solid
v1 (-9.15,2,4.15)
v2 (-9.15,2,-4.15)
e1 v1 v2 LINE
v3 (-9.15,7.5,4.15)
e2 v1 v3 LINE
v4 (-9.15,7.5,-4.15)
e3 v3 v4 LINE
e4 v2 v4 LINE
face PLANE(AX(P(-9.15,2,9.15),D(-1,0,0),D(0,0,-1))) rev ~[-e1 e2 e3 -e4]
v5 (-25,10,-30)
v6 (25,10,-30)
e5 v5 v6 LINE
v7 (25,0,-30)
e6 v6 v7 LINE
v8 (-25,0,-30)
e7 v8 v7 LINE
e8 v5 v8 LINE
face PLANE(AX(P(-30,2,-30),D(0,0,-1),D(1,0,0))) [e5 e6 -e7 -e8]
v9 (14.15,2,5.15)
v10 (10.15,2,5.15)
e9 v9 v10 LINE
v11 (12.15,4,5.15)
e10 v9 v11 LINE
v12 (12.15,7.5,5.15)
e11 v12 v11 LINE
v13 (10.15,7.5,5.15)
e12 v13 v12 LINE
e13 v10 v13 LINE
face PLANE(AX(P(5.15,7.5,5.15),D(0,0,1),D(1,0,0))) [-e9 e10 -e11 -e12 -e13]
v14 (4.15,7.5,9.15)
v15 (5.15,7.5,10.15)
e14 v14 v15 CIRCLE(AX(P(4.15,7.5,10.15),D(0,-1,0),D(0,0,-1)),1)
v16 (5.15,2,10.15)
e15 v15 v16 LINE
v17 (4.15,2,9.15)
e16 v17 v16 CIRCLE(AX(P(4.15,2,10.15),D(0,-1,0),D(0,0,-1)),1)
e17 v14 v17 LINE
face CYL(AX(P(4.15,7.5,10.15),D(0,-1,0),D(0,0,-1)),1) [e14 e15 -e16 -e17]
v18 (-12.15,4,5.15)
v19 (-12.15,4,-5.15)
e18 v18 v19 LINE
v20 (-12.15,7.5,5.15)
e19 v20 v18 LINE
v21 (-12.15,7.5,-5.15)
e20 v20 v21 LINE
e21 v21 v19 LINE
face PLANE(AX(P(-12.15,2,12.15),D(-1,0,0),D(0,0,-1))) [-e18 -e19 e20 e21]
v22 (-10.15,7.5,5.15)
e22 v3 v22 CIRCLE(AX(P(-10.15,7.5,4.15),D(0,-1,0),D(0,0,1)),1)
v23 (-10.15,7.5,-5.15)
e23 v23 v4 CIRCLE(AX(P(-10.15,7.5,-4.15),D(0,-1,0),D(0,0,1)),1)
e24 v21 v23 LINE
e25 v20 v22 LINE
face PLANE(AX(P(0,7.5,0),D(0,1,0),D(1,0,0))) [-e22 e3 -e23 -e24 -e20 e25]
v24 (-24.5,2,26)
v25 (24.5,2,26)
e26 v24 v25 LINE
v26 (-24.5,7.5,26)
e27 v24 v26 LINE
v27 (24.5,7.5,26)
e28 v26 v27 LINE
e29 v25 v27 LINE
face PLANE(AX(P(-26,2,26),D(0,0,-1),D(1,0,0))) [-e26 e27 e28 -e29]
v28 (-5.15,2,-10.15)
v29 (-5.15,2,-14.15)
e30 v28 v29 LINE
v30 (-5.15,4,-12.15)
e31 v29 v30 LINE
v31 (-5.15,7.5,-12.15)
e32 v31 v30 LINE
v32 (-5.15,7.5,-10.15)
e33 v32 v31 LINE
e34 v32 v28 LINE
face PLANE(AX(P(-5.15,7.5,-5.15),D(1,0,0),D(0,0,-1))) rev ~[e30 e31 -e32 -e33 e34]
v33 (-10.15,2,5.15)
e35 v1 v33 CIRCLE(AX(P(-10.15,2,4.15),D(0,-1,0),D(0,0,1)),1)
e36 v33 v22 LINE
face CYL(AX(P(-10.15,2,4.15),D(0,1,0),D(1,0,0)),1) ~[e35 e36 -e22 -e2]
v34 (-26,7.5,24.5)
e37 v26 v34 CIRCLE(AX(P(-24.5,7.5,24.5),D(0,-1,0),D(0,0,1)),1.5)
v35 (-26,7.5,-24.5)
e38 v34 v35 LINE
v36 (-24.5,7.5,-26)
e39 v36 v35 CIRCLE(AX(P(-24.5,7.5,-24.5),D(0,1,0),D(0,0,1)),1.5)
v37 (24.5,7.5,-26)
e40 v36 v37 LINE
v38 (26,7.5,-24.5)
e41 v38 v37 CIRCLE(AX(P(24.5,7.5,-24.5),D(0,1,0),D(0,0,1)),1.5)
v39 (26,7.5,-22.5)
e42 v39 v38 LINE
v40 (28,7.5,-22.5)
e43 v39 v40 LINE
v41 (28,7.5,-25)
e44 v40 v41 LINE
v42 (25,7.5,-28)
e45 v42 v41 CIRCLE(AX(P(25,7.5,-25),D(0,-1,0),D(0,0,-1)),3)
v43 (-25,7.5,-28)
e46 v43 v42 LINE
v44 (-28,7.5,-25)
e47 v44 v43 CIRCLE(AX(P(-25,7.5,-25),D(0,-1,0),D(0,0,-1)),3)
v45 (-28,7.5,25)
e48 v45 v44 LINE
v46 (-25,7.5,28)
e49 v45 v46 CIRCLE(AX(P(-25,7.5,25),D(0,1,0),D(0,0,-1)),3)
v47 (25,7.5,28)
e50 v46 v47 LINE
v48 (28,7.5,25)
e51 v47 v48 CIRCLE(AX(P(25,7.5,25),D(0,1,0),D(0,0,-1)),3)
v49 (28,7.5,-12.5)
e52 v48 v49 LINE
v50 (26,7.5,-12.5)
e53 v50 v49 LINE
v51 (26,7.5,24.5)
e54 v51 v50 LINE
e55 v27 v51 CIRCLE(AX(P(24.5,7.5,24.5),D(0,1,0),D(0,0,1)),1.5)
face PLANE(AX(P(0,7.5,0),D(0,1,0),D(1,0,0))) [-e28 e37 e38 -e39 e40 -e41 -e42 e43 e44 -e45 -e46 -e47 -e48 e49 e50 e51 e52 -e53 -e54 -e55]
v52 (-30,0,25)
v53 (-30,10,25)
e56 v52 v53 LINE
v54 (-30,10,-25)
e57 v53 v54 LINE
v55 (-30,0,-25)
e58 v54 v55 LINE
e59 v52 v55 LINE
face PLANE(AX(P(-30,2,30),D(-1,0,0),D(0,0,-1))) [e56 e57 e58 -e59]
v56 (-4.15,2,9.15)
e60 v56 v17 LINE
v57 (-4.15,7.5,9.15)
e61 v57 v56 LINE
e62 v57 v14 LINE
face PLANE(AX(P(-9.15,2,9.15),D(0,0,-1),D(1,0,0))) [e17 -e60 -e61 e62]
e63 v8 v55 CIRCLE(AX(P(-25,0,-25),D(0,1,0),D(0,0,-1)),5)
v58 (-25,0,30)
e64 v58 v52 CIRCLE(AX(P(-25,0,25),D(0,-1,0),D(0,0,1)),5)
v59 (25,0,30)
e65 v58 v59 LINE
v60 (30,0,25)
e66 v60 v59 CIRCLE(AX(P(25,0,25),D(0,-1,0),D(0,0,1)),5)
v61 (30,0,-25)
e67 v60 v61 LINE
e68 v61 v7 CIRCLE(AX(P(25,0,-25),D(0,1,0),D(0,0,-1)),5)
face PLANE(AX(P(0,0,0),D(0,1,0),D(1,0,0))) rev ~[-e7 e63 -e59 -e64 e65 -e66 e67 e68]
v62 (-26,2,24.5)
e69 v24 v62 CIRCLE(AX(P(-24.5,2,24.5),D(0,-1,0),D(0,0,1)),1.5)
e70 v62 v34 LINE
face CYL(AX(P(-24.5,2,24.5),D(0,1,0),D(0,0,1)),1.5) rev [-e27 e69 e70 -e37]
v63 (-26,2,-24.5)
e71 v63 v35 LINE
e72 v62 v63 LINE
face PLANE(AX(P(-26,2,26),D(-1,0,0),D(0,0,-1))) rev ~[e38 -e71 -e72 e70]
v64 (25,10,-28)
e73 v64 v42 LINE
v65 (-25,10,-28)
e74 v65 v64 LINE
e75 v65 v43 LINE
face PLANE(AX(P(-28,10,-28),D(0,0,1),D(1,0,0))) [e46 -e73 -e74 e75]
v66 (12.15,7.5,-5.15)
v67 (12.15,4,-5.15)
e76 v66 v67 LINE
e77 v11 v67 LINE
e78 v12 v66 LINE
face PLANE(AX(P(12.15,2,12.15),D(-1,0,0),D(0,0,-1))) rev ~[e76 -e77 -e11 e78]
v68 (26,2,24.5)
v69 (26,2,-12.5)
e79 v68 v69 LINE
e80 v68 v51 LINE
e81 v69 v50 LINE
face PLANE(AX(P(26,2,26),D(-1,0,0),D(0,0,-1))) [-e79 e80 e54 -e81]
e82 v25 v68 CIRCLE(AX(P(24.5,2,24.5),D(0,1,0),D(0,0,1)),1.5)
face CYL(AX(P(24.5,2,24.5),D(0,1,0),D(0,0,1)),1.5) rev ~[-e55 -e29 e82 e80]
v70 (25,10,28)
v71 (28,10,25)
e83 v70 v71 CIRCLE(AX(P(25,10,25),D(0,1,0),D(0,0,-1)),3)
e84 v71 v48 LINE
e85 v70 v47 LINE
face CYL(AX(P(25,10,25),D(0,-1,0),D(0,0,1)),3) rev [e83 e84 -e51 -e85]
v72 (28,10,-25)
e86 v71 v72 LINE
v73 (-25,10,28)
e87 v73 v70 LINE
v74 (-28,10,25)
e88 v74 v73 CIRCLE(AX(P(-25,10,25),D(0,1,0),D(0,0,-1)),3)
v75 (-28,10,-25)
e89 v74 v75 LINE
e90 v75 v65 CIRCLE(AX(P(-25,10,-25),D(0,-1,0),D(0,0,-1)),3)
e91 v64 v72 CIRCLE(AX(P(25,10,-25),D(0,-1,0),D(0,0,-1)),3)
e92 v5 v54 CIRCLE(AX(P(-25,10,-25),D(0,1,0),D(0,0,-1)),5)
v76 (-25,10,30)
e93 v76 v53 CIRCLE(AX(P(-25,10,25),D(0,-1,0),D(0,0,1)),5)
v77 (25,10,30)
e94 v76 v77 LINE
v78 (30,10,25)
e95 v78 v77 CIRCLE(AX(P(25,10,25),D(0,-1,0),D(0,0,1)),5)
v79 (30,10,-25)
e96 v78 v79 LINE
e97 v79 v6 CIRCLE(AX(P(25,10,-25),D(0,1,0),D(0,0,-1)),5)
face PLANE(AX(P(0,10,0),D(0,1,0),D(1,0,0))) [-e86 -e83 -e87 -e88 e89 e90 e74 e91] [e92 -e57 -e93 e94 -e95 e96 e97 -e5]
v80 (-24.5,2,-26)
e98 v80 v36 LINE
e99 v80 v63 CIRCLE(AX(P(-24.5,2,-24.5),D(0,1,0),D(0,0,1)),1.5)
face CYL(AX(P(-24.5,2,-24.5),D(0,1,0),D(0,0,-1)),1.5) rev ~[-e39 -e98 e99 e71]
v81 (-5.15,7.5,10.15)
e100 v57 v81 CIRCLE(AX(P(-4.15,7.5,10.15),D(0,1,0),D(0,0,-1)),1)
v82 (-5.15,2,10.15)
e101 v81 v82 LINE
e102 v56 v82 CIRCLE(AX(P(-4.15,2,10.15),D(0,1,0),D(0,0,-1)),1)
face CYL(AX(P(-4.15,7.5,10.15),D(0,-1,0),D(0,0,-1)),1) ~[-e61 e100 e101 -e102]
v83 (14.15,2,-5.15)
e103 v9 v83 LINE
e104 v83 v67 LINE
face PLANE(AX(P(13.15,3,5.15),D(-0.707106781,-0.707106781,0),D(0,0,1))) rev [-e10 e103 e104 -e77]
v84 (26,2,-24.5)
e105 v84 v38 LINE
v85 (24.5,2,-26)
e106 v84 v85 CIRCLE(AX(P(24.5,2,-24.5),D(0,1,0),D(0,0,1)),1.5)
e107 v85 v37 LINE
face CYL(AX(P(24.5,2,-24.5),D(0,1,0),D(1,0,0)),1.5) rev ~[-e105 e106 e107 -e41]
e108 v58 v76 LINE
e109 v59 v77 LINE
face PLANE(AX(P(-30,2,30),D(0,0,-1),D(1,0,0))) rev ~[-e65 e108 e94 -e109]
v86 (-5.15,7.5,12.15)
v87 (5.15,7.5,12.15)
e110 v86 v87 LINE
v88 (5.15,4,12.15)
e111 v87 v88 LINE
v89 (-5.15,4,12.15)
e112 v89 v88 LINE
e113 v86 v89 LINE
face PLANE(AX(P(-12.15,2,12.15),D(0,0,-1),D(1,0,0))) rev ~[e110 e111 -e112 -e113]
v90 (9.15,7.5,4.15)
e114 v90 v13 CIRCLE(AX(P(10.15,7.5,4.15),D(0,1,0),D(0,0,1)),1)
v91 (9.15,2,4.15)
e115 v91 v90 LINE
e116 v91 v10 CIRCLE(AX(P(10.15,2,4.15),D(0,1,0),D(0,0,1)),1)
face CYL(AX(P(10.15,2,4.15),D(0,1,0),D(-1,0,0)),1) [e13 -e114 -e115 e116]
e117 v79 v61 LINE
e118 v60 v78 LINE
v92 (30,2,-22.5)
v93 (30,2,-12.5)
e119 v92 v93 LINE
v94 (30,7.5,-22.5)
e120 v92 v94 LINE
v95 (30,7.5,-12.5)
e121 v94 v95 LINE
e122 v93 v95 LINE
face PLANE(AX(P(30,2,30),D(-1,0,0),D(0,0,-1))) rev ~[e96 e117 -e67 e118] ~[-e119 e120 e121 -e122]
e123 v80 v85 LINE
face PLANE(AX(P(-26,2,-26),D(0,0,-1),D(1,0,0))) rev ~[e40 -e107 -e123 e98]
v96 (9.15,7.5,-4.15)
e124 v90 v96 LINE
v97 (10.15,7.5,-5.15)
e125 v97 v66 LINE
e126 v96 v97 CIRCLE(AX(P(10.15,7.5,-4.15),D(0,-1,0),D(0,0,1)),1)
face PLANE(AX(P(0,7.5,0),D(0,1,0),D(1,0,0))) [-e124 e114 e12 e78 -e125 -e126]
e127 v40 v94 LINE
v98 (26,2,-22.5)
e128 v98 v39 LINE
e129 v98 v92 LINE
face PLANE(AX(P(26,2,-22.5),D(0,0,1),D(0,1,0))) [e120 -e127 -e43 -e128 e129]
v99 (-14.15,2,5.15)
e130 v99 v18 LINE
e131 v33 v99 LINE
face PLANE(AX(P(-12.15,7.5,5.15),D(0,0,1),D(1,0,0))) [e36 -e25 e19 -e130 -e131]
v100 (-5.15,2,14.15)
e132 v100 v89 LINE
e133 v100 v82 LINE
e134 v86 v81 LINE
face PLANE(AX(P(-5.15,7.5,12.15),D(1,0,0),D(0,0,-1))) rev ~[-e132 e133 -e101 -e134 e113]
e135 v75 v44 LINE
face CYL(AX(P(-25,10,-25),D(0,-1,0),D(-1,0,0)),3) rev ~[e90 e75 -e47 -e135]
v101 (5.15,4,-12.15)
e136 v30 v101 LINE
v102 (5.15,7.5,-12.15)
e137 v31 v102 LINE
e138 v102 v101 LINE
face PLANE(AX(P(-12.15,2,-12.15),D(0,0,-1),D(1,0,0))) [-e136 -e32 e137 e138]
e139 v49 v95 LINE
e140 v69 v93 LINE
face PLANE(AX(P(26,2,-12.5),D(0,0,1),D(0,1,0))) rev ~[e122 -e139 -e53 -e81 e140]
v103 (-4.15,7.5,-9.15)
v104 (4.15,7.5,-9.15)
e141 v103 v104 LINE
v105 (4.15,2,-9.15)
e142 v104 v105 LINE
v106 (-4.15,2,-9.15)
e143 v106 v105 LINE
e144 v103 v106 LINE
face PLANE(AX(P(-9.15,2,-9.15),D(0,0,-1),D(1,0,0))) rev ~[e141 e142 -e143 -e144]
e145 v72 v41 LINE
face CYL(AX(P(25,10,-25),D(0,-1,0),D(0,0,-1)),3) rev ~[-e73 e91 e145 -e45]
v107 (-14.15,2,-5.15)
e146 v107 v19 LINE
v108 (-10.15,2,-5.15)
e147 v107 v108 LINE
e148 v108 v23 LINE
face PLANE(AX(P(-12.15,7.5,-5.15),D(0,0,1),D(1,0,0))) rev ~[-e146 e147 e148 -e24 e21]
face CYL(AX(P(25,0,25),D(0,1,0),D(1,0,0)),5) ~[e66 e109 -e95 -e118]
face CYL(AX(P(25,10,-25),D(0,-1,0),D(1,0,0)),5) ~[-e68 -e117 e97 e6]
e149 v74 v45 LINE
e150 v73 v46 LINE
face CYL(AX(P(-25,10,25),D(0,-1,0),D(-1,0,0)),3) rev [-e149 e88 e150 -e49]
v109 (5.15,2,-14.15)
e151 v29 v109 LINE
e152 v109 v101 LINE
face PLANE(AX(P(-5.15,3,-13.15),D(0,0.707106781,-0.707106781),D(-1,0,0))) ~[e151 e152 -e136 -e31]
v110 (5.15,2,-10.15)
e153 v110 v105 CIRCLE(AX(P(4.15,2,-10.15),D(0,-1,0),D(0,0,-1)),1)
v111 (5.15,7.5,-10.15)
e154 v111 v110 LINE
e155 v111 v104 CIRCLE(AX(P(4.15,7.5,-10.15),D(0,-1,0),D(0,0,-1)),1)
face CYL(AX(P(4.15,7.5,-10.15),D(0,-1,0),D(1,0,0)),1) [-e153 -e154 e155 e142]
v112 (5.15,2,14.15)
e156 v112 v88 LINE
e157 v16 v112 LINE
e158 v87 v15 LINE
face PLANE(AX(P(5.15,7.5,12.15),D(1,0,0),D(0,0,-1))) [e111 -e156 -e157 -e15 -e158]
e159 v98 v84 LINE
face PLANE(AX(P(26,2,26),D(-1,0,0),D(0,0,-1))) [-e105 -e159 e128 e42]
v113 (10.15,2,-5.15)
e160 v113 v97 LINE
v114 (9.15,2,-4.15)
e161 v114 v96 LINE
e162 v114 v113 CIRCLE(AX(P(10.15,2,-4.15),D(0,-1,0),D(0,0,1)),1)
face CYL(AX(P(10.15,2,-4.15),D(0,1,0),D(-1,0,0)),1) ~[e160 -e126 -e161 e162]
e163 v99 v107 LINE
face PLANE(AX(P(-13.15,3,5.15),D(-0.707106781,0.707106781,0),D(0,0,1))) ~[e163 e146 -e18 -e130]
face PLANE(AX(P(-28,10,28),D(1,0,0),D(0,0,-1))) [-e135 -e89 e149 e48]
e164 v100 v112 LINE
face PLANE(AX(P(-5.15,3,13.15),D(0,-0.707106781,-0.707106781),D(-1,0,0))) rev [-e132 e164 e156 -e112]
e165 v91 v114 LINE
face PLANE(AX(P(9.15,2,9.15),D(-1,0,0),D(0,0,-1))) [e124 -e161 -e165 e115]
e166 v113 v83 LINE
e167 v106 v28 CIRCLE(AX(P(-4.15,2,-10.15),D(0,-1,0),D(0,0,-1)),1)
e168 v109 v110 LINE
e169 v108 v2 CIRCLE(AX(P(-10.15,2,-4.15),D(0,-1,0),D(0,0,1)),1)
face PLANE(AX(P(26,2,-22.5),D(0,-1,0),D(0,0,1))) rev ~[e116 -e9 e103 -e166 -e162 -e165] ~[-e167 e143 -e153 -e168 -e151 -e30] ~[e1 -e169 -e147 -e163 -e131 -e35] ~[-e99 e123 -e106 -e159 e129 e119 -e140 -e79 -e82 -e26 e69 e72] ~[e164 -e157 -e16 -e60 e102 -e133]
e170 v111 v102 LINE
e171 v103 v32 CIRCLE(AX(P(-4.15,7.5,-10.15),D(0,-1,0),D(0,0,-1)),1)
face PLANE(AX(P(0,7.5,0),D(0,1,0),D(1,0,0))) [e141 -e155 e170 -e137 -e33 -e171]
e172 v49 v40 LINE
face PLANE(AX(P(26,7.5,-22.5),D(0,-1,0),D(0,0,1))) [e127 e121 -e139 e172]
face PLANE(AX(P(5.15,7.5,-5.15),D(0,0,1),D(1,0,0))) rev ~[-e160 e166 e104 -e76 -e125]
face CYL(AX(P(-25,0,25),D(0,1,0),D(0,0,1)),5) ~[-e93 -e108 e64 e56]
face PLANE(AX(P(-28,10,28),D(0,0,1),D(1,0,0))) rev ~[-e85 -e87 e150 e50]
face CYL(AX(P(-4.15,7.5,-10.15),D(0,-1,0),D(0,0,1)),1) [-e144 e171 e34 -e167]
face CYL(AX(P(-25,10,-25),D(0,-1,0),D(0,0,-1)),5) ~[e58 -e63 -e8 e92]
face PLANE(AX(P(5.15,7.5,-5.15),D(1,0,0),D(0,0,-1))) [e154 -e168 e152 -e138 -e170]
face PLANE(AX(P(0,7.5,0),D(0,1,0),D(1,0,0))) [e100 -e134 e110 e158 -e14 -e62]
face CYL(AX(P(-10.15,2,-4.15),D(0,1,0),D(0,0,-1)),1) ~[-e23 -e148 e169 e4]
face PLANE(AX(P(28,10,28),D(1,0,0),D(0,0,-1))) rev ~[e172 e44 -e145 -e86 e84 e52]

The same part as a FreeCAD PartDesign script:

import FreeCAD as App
import Part
import Sketcher
from FreeCAD import Vector
Q = App.Units.Quantity


def edges_at(feature, points):
    """Names of the edges that pass closest to the given points."""
    edges = feature.Shape.Edges
    near = lambda p: min(range(len(edges)), key=lambda i: edges[i].distToShape(Part.Vertex(*p))[0])
    return sorted({f"Edge{near(p) + 1}" for p in points})


def add_polygon(sketch, points):
    """Adds a closed chain of lines whose ends are joined by coincident constraints."""
    first, n = sketch.GeometryCount, len(points)
    for a, b in zip(points, points[1:] + points[:1]):
        sketch.addGeometry(Part.LineSegment(App.Vector(*a, 0), App.Vector(*b, 0)), False)
    for i in range(n):
        sketch.addConstraint(Sketcher.Constraint("Coincident", first + i, 2, first + (i + 1) % n, 1))

doc = App.newDocument("Part")
body = doc.addObject("PartDesign::Body", "Body")

sketch1 = body.newObject("Sketcher::SketchObject", "Sketch")
sketch1.AttachmentSupport = (doc.getObject("XZ_Plane"), [""])
sketch1.MapMode = "FlatFace"
add_polygon(sketch1, [(-30, -30), (-30, 30), (30, 30), (30, -30)])
sketch1.addConstraint([
    Sketcher.Constraint("Vertical", 0),
    Sketcher.Constraint("Horizontal", 1),
    Sketcher.Constraint("Vertical", 2),
    Sketcher.Constraint("Horizontal", 3),
    Sketcher.Constraint("Symmetric", 0, 2, 2, 2, -1, 1),
    Sketcher.Constraint("Equal", 3, 0),
    Sketcher.Constraint("DistanceX", 1, 1, 1, 2, Q("60 mm")),
])
pad1 = body.newObject("PartDesign::Pad", "Pad")
pad1.Profile = sketch1
pad1.Length = 2
pad1.Reversed = True

sketch2 = body.newObject("Sketcher::SketchObject", "Sketch001")
sketch2.AttachmentSupport = (doc.getObject("XZ_Plane"), [""])
sketch2.MapMode = "FlatFace"
sketch2.AttachmentOffset = App.Placement(Vector(0, 0, -2), App.Rotation())
add_polygon(sketch2, [(-12, -12), (-12, 12), (12, 12), (12, -12)])
add_polygon(sketch2, [(9, 9), (-9, 9), (-9, -9), (9, -9)])
sketch2.addConstraint([
    Sketcher.Constraint("Vertical", 0),
    Sketcher.Constraint("Horizontal", 1),
    Sketcher.Constraint("Vertical", 2),
    Sketcher.Constraint("Horizontal", 3),
    Sketcher.Constraint("Horizontal", 4),
    Sketcher.Constraint("Vertical", 5),
    Sketcher.Constraint("Horizontal", 6),
    Sketcher.Constraint("Vertical", 7),
    Sketcher.Constraint("Symmetric", 0, 2, 2, 2, -1, 1),
    Sketcher.Constraint("Symmetric", 4, 2, 6, 2, -1, 1),
    Sketcher.Constraint("Equal", 3, 0),
    Sketcher.Constraint("Equal", 6, 5),
    Sketcher.Constraint("DistanceX", 1, 1, 1, 2, Q("24.3 mm")),
    Sketcher.Constraint("DistanceX", 4, 2, 4, 1, Q("18.3 mm")),
])
pad2 = body.newObject("PartDesign::Pad", "Pad001")
pad2.Profile = sketch2
pad2.Length = 5.5
pad2.Reversed = True

sketch3 = body.newObject("Sketcher::SketchObject", "Sketch002")
sketch3.AttachmentSupport = (doc.getObject("XZ_Plane"), [""])
sketch3.MapMode = "FlatFace"
sketch3.AttachmentOffset = App.Placement(Vector(0, 0, -2), App.Rotation())
add_polygon(sketch3, [(-30, -30), (-30, 30), (30, 30), (30, -30)])
add_polygon(sketch3, [(26, 26), (-26, 26), (-26, -26), (26, -26)])
sketch3.addConstraint([
    Sketcher.Constraint("Vertical", 0),
    Sketcher.Constraint("Horizontal", 1),
    Sketcher.Constraint("Vertical", 2),
    Sketcher.Constraint("Horizontal", 3),
    Sketcher.Constraint("Horizontal", 4),
    Sketcher.Constraint("Vertical", 5),
    Sketcher.Constraint("Horizontal", 6),
    Sketcher.Constraint("Vertical", 7),
    Sketcher.Constraint("Symmetric", 0, 2, 2, 2, -1, 1),
    Sketcher.Constraint("Symmetric", 4, 2, 6, 2, -1, 1),
    Sketcher.Constraint("Equal", 3, 0),
    Sketcher.Constraint("Equal", 6, 5),
    Sketcher.Constraint("DistanceX", 1, 1, 1, 2, Q("60 mm")),
    Sketcher.Constraint("DistanceX", 4, 2, 4, 1, Q("52 mm")),
])
pad3 = body.newObject("PartDesign::Pad", "Pad002")
pad3.Profile = sketch3
pad3.Length = 8
pad3.Reversed = True

sketch4 = body.newObject("Sketcher::SketchObject", "Sketch003")
sketch4.AttachmentSupport = (doc.getObject("XZ_Plane"), [""])
sketch4.MapMode = "FlatFace"
sketch4.AttachmentOffset = App.Placement(Vector(0, 0, -7.5), App.Rotation())
add_polygon(sketch4, [(5, -12), (5, -5), (12, -5), (12, -12)])
add_polygon(sketch4, [(-12, -12), (-12, -5), (-5, -5), (-5, -12)])
add_polygon(sketch4, [(5, 5), (5, 12), (12, 12), (12, 5)])
add_polygon(sketch4, [(-12, 5), (-12, 12), (-5, 12), (-5, 5)])
sketch4.addConstraint([
    Sketcher.Constraint("Vertical", 0),
    Sketcher.Constraint("Horizontal", 1),
    Sketcher.Constraint("Vertical", 2),
    Sketcher.Constraint("Horizontal", 3),
    Sketcher.Constraint("Vertical", 4),
    Sketcher.Constraint("Horizontal", 5),
    Sketcher.Constraint("Vertical", 6),
    Sketcher.Constraint("Horizontal", 7),
    Sketcher.Constraint("Vertical", 8),
    Sketcher.Constraint("Horizontal", 9),
    Sketcher.Constraint("Vertical", 10),
    Sketcher.Constraint("Horizontal", 11),
    Sketcher.Constraint("Vertical", 12),
    Sketcher.Constraint("Horizontal", 13),
    Sketcher.Constraint("Vertical", 14),
    Sketcher.Constraint("Horizontal", 15),
    Sketcher.Constraint("Symmetric", 6, 2, 8, 2, -1, 1),
    Sketcher.Constraint("Symmetric", 4, 2, 10, 2, -1, 1),
    Sketcher.Constraint("Symmetric", 2, 2, 12, 2, -1, 1),
    Sketcher.Constraint("Symmetric", 0, 2, 14, 2, -1, 1),
    Sketcher.Constraint("Symmetric", 1, 2, 4, 2, -2),
    Sketcher.Constraint("Symmetric", 3, 2, 6, 2, -2),
    Sketcher.Constraint("Equal", 15, 0),
    Sketcher.Constraint("DistanceX", 1, 1, 1, 2, Q("7 mm")),
    Sketcher.Constraint("DistanceX", 4, 2, 0, 2, Q("17.3 mm")),
    Sketcher.Constraint("DistanceY", 0, 2, 8, 2, Q("17.3 mm")),
])
pocket1 = body.newObject("PartDesign::Pocket", "Pocket")
pocket1.Profile = sketch4
pocket1.Length = 5.5
pocket1.Reversed = True

sketch5 = body.newObject("Sketcher::SketchObject", "Sketch004")
sketch5.AttachmentSupport = (doc.getObject("XZ_Plane"), [""])
sketch5.MapMode = "FlatFace"
sketch5.AttachmentOffset = App.Placement(Vector(0, 0, -10), App.Rotation())
add_polygon(sketch5, [(-28, -28), (-28, 28), (28, 28), (28, -28)])
add_polygon(sketch5, [(26, 26), (-26, 26), (-26, -26), (26, -26)])
sketch5.addConstraint([
    Sketcher.Constraint("Vertical", 0),
    Sketcher.Constraint("Horizontal", 1),
    Sketcher.Constraint("Vertical", 2),
    Sketcher.Constraint("Horizontal", 3),
    Sketcher.Constraint("Horizontal", 4),
    Sketcher.Constraint("Vertical", 5),
    Sketcher.Constraint("Horizontal", 6),
    Sketcher.Constraint("Vertical", 7),
    Sketcher.Constraint("Symmetric", 0, 2, 2, 2, -1, 1),
    Sketcher.Constraint("Symmetric", 4, 2, 6, 2, -1, 1),
    Sketcher.Constraint("Equal", 3, 0),
    Sketcher.Constraint("Equal", 6, 5),
    Sketcher.Constraint("DistanceX", 1, 1, 1, 2, Q("56 mm")),
    Sketcher.Constraint("DistanceX", 4, 2, 4, 1, Q("52 mm")),
])
pocket2 = body.newObject("PartDesign::Pocket", "Pocket001")
pocket2.Profile = sketch5
pocket2.Length = 2.5
pocket2.Reversed = True
doc.recompute()

fillet = body.newObject("PartDesign::Fillet", "Fillet")
fillet.Base = (pocket2, edges_at(pocket2, [
    (26, 4.75, 26),
    (26, 4.75, -26),
    (-26, 4.75, 26),
    (-26, 4.75, -26),
]))
fillet.Radius = 1.5
doc.recompute()

fillet2 = body.newObject("PartDesign::Fillet", "Fillet001")
fillet2.Base = (fillet, edges_at(fillet, [
    (-28, 8.75, 28),
    (-28, 8.75, -28),
    (28, 8.75, -28),
    (28, 8.75, 28),
]))
fillet2.Radius = 3

sketch6 = body.newObject("Sketcher::SketchObject", "Sketch005")
sketch6.AttachmentSupport = (doc.getObject("YZ_Plane"), [""])
sketch6.MapMode = "FlatFace"
sketch6.AttachmentOffset = App.Placement(Vector(0, 0, 26), App.Rotation())
add_polygon(sketch6, [(8, -22), (2, -22), (2, -12), (8, -12)])
sketch6.addConstraint([
    Sketcher.Constraint("Horizontal", 0),
    Sketcher.Constraint("Vertical", 1),
    Sketcher.Constraint("Horizontal", 2),
    Sketcher.Constraint("Vertical", 3),
    Sketcher.Constraint("DistanceY", 1, 1, 1, 2, Q("10 mm")),
    Sketcher.Constraint("DistanceX", 0, 2, 0, 1, Q("5.5 mm")),
    Sketcher.Constraint("DistanceX", -1, 1, 0, 2, Q("2 mm")),
    Sketcher.Constraint("DistanceY", 0, 2, -1, 1, Q("22.5 mm")),
])
pocket3 = body.newObject("PartDesign::Pocket", "Pocket002")
pocket3.Profile = sketch6
pocket3.Type = "ThroughAll"
pocket3.Reversed = True
doc.recompute()

chamfer = body.newObject("PartDesign::Chamfer", "Chamfer")
chamfer.Base = (pocket3, edges_at(pocket3, [
    (-12.15, 2, 0),
    (0, 2, -12.15),
    (12.15, 2, 0),
    (0, 2, 12.15),
]))
chamfer.Size = 2
doc.recompute()

fillet3 = body.newObject("PartDesign::Fillet", "Fillet002")
fillet3.Base = (chamfer, edges_at(chamfer, [
    (9.15, 4.75, -5.15),
    (5.15, 4.75, -9.15),
    (5.15, 4.75, 9.15),
    (9.15, 4.75, 5.15),
    (-9.15, 4.75, 5.15),
    (-5.15, 4.75, 9.15),
    (-5.15, 4.75, -9.15),
    (-9.15, 4.75, -5.15),
]))
fillet3.Radius = 1
doc.recompute()

fillet4 = body.newObject("PartDesign::Fillet", "Fillet003")
fillet4.Base = (fillet3, edges_at(fillet3, [
    (30, 5, 30),
    (-30, 5, 30),
    (-30, 5, -30),
    (30, 5, -30),
]))
fillet4.Radius = 5

doc.recompute()
